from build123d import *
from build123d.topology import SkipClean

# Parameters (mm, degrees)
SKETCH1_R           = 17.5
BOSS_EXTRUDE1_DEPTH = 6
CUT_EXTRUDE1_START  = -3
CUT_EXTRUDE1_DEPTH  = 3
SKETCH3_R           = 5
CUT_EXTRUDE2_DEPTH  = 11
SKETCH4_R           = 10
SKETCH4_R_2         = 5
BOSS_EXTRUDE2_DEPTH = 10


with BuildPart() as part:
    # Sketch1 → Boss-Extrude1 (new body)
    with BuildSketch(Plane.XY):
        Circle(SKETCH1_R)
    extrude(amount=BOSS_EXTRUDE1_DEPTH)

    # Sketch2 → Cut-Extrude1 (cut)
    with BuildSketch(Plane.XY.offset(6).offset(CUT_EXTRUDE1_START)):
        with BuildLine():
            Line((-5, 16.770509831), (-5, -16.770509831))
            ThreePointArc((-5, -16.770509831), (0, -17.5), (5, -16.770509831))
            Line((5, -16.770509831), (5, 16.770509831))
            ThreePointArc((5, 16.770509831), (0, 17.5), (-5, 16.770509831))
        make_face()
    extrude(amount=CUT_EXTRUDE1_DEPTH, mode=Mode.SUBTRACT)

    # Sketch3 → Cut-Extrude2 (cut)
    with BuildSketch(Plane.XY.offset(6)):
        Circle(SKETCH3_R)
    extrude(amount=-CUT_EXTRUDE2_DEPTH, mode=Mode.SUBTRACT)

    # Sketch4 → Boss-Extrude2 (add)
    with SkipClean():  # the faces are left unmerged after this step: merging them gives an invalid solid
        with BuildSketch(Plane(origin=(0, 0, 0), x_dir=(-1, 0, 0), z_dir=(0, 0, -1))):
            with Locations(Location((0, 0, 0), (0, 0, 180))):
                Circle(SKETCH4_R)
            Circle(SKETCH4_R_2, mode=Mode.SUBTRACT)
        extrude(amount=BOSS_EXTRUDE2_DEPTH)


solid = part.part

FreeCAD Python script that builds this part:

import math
import FreeCAD as App
import Part
import Sketcher
from FreeCAD import Vector

doc = App.newDocument("Part")
params = doc.addObject("Spreadsheet::Sheet", "Params")
for row, (alias, value) in enumerate([
    ("sketch1_diameter", "35 mm"),
    ("pad1_length", "6 mm"),
    ("sketch2_radius", "17.5 mm"),
    ("pocket1_length", "3 mm"),
    ("sketch3_diameter", "10 mm"),
    ("pocket2_length", "11 mm"),
    ("sketch4_diameter", "20 mm"),
    ("sketch4_diameter2", "10 mm"),
    ("pad2_length", "10 mm"),
], start=1):
    params.set(f"A{row}", alias)
    params.set(f"B{row}", "=" + value)
    params.setAlias(f"B{row}", alias)

body = doc.addObject("PartDesign::Body", "Body")

# Sketch on XY plane
sketch1 = body.newObject("Sketcher::SketchObject", "Sketch")
sketch1.AttachmentSupport = (doc.getObject("XY_Plane"), [""])
sketch1.MapMode = "FlatFace"
sketch1.addGeometry(Part.Circle(Vector(0, 0, 0), Vector(0, 0, 1), 18), False)
sketch1.addConstraint([
    Sketcher.Constraint("Coincident", 0, 3, -1, 1),
    Sketcher.Constraint("Diameter", 0, 35.0),
])
sketch1.setExpression("Constraints[1]", "Params.sketch1_diameter")
pad1 = body.newObject("PartDesign::Pad", "Pad")
pad1.Profile = sketch1
pad1.setExpression("Length", "Params.pad1_length")

# Sketch on XY plane
sketch2 = body.newObject("Sketcher::SketchObject", "Sketch001")
sketch2.AttachmentSupport = (doc.getObject("XY_Plane"), [""])
sketch2.MapMode = "FlatFace"
sketch2.AttachmentOffset = App.Placement(Vector(0, 0, 3), App.Rotation())
sketch2.addGeometry([
    Part.LineSegment(Vector(-5, 17, 0), Vector(-5, -17, 0)),
    Part.ArcOfCircle(Part.Circle(Vector(0, 0, 0), Vector(0, 0, 1), 17), math.radians(-107), math.radians(-73)),
    Part.LineSegment(Vector(5, -17, 0), Vector(5, 17, 0)),
    Part.ArcOfCircle(Part.Circle(Vector(0, 0, 0), Vector(0, 0, 1), 17), math.radians(73), math.radians(107)),
], False)
sketch2.addConstraint([
    Sketcher.Constraint("Coincident", 0, 2, 1, 1),
    Sketcher.Constraint("Coincident", 1, 2, 2, 1),
    Sketcher.Constraint("Coincident", 2, 2, 3, 1),
    Sketcher.Constraint("Coincident", 3, 2, 0, 1),
    Sketcher.Constraint("Vertical", 0),
    Sketcher.Constraint("Vertical", 2),
    Sketcher.Constraint("Coincident", 1, 3, -1, 1),
    Sketcher.Constraint("Coincident", 3, 3, -1, 1),
    Sketcher.Constraint("Equal", 1, 3),
    Sketcher.Constraint("Horizontal", 0, 2, 1, 2),
    Sketcher.Constraint("Radius", 1, 17.5),
    Sketcher.Constraint("DistanceX", 0, 2, -1, 1, 5.0),
])
sketch2.setExpression("Constraints[10]", "Params.sketch2_radius")
pocket1 = body.newObject("PartDesign::Pocket", "Pocket")
pocket1.Profile = sketch2
pocket1.setExpression("Length", "Params.pocket1_length")
pocket1.Reversed = True

# Sketch on XY plane
sketch3 = body.newObject("Sketcher::SketchObject", "Sketch002")
sketch3.AttachmentSupport = (doc.getObject("XY_Plane"), [""])
sketch3.MapMode = "FlatFace"
sketch3.AttachmentOffset = App.Placement(Vector(0, 0, 6), App.Rotation())
sketch3.addGeometry(Part.Circle(Vector(0, 0, 0), Vector(0, 0, 1), 5), False)
sketch3.addConstraint([
    Sketcher.Constraint("Coincident", 0, 3, -1, 1),
    Sketcher.Constraint("Diameter", 0, 10.0),
])
sketch3.setExpression("Constraints[1]", "Params.sketch3_diameter")
pocket2 = body.newObject("PartDesign::Pocket", "Pocket001")
pocket2.Profile = sketch3
pocket2.setExpression("Length", "Params.pocket2_length")

# Sketch on XY plane
sketch4 = body.newObject("Sketcher::SketchObject", "Sketch003")
sketch4.AttachmentSupport = (doc.getObject("XY_Plane"), [""])
sketch4.MapMode = "FlatFace"
sketch4.addGeometry([
    Part.Circle(Vector(0, 0, 0), Vector(0, 0, 1), 10),
    Part.Circle(Vector(0, 0, 0), Vector(0, 0, 1), 5),
], False)
sketch4.addConstraint([
    Sketcher.Constraint("Coincident", 0, 3, -1, 1),
    Sketcher.Constraint("Coincident", 1, 3, -1, 1),
    Sketcher.Constraint("Diameter", 0, 20.0),
    Sketcher.Constraint("Diameter", 1, 10.0),
])
sketch4.setExpression("Constraints[2]", "Params.sketch4_diameter")
sketch4.setExpression("Constraints[3]", "Params.sketch4_diameter2")
pad2 = body.newObject("PartDesign::Pad", "Pad001")
pad2.Profile = sketch4
pad2.setExpression("Length", "Params.pad2_length")
pad2.Reversed = True

doc.recompute()
